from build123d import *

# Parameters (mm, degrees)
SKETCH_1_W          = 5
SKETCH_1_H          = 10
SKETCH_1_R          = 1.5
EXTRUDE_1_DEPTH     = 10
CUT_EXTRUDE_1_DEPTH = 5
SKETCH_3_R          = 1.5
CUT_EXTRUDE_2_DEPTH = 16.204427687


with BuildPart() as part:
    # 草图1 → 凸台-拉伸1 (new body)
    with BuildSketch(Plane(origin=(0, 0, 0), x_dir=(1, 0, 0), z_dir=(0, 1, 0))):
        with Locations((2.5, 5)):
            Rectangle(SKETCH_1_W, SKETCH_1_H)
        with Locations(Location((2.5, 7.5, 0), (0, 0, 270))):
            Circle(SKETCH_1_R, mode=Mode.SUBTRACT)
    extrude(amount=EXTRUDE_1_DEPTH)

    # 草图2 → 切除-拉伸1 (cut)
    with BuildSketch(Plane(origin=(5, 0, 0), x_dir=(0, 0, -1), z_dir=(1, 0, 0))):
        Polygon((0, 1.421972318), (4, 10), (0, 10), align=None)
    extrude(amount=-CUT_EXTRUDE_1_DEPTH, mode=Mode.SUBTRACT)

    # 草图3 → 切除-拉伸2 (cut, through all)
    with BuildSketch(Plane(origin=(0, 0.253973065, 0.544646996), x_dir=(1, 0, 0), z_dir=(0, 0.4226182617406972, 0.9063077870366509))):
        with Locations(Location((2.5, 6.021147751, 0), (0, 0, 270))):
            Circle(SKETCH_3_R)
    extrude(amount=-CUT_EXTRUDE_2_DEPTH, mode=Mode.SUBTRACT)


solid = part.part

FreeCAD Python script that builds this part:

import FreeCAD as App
import Part
import Sketcher
from FreeCAD import Vector
Q = App.Units.Quantity


def add_polygon(sketch, points):
    """Adds a closed chain of lines whose ends are joined by coincident constraints."""
    first, n = sketch.GeometryCount, len(points)
    for a, b in zip(points, points[1:] + points[:1]):
        sketch.addGeometry(Part.LineSegment(App.Vector(*a, 0), App.Vector(*b, 0)), False)
    for i in range(n):
        sketch.addConstraint(Sketcher.Constraint("Coincident", first + i, 2, first + (i + 1) % n, 1))

doc = App.newDocument("Part")
body = doc.addObject("PartDesign::Body", "Body")

# Sketch on XZ plane
sketch1 = body.newObject("Sketcher::SketchObject", "Sketch")
sketch1.AttachmentSupport = (doc.getObject("XZ_Plane"), [""])
sketch1.MapMode = "FlatFace"
add_polygon(sketch1, [(0, -10), (0, 0), (5, 0), (5, -10)])  # lines 0-3
sketch1.addGeometry(Part.Circle(Vector(2.5, -7.5, 0), Vector(0, 0, 1), 1.5), False)  # 4
sketch1.addConstraint([
    Sketcher.Constraint("Vertical", 0),
    Sketcher.Constraint("Horizontal", 1),
    Sketcher.Constraint("Vertical", 2),
    Sketcher.Constraint("Horizontal", 3),
    Sketcher.Constraint("Coincident", 0, 2, -1, 1),
    Sketcher.Constraint("Diameter", 4, 3.0),
    Sketcher.Constraint("DistanceX", 1, 1, 1, 2, 5.0),
    Sketcher.Constraint("DistanceY", 0, 1, 0, 2, 10.0),
    Sketcher.Constraint("DistanceX", -1, 1, 4, 3, 2.5),
    Sketcher.Constraint("DistanceY", 4, 3, -1, 1, 7.5),
])
pad1 = body.newObject("PartDesign::Pad", "Pad")
pad1.Profile = sketch1
pad1.Length = 10
pad1.Reversed = True

# Sketch on YZ plane
sketch2 = body.newObject("Sketcher::SketchObject", "Sketch001")
sketch2.AttachmentSupport = (doc.getObject("YZ_Plane"), [""])
sketch2.MapMode = "FlatFace"
sketch2.AttachmentOffset = App.Placement(Vector(0, 0, 5), App.Rotation())
add_polygon(sketch2, [(1.4, 0), (10, -4), (10, 0)])  # lines 0-2
sketch2.addConstraint([
    Sketcher.Constraint("Vertical", 1),
    Sketcher.Constraint("Horizontal", 2),
    Sketcher.Constraint("PointOnObject", 1, 2, -1),
    Sketcher.Constraint("DistanceY", 1, 1, 1, 2, 4.0),
    Sketcher.Constraint("Angle", 0, Q("-25 deg")),
    Sketcher.Constraint("DistanceX", -1, 1, 0, 2, 10.0),
])
pocket1 = body.newObject("PartDesign::Pocket", "Pocket")
pocket1.Profile = sketch2
pocket1.Length = 5

# Sketch on an angled plane
sketch3 = body.newObject("Sketcher::SketchObject", "Sketch002")
sketch3.Placement = App.Placement(Vector(0, 0.253973, 0.544647), App.Rotation(Vector(1, 0, 0), Vector(0, 0.906307787, -0.422618262), Vector(0, 0.422618262, 0.906307787), "ZXY"))
sketch3.addGeometry(Part.Circle(Vector(2.5, 6, 0), Vector(0, 0, 1), 1.5), False)
sketch3.addConstraint([
    Sketcher.Constraint("Diameter", 0, 3.0),
    Sketcher.Constraint("DistanceX", -1, 1, 0, 3, 2.5),
    Sketcher.Constraint("DistanceY", -1, 1, 0, 3, 6.021148),
])
pocket2 = body.newObject("PartDesign::Pocket", "Pocket001")
pocket2.Profile = sketch3
pocket2.Type = "ThroughAll"

doc.recompute()
